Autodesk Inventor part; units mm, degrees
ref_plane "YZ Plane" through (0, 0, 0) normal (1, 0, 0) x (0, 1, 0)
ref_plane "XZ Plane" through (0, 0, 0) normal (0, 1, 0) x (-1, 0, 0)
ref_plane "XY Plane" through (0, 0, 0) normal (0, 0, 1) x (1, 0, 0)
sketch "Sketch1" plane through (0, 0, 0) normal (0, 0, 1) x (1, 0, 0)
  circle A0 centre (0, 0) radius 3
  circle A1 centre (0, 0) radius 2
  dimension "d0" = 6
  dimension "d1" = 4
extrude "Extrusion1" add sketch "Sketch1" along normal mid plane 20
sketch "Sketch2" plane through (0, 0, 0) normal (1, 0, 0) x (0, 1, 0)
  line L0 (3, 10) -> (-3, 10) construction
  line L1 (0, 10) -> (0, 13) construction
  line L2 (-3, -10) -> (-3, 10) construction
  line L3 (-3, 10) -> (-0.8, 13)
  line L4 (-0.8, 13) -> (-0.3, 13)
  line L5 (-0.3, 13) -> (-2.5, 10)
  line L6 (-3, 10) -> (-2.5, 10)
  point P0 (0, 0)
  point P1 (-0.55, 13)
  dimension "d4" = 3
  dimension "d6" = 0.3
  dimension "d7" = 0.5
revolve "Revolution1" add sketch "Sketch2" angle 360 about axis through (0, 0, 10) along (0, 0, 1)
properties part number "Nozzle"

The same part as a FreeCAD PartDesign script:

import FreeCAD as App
import Part
import Sketcher
Q = App.Units.Quantity

doc = App.newDocument("Part")
body = doc.addObject("PartDesign::Body", "Body")

# Sketch on XY plane
sketch1 = body.newObject("Sketcher::SketchObject", "Sketch")
sketch1.AttachmentSupport = (doc.getObject("XY_Plane"), [""])
sketch1.MapMode = "FlatFace"
sketch1.addGeometry([
    Part.Circle(App.Vector(0, 0, 0), App.Vector(0, 0, 1), 3),
    Part.Circle(App.Vector(0, 0, 0), App.Vector(0, 0, 1), 2),
], False)
sketch1.addConstraint([
    Sketcher.Constraint("Coincident", 0, 3, -1, 1),
    Sketcher.Constraint("Coincident", 1, 3, -1, 1),
    Sketcher.Constraint("Diameter", 0, Q("6 mm")),
    Sketcher.Constraint("Diameter", 1, Q("4 mm")),
])
pad1 = body.newObject("PartDesign::Pad", "Pad")
pad1.Profile = sketch1
pad1.Length = 20
pad1.Midplane = True

# Sketch on YZ plane
sketch2 = body.newObject("Sketcher::SketchObject", "Sketch001")
sketch2.AttachmentSupport = (doc.getObject("YZ_Plane"), [""])
sketch2.MapMode = "FlatFace"
sketch2.addGeometry([
    Part.LineSegment(App.Vector(-0.8, 13, 0), App.Vector(-3, 10, 0)),
    Part.LineSegment(App.Vector(-3, 10, 0), App.Vector(-2.5, 10, 0)),
    Part.LineSegment(App.Vector(-2.5, 10, 0), App.Vector(-0.3, 13, 0)),
    Part.LineSegment(App.Vector(-0.3, 13, 0), App.Vector(-0.8, 13, 0)),
], False)
sketch2.addConstraint([
    Sketcher.Constraint("Coincident", 0, 2, 1, 1),
    Sketcher.Constraint("Coincident", 1, 2, 2, 1),
    Sketcher.Constraint("Coincident", 2, 2, 3, 1),
    Sketcher.Constraint("Coincident", 3, 2, 0, 1),
    Sketcher.Constraint("Horizontal", 1),
    Sketcher.Constraint("Horizontal", 3),
    Sketcher.Constraint("Parallel", 0, 2),
    Sketcher.Constraint("DistanceX", 1, 1, 1, 2, Q("0.5 mm")),
    Sketcher.Constraint("DistanceX", 0, 2, -1, 1, Q("3 mm")),
    Sketcher.Constraint("DistanceY", 1, 2, 2, 2, Q("3 mm")),
    Sketcher.Constraint("DistanceX", 2, 2, -1, 1, Q("0.3 mm")),
    Sketcher.Constraint("DistanceY", -1, 1, 0, 2, Q("10 mm")),
])
revolution = body.newObject("PartDesign::Revolution", "Revolution")
revolution.Profile = sketch2
revolution.ReferenceAxis = (sketch2, ["V_Axis"])
revolution.Angle = 360

doc.recompute()
